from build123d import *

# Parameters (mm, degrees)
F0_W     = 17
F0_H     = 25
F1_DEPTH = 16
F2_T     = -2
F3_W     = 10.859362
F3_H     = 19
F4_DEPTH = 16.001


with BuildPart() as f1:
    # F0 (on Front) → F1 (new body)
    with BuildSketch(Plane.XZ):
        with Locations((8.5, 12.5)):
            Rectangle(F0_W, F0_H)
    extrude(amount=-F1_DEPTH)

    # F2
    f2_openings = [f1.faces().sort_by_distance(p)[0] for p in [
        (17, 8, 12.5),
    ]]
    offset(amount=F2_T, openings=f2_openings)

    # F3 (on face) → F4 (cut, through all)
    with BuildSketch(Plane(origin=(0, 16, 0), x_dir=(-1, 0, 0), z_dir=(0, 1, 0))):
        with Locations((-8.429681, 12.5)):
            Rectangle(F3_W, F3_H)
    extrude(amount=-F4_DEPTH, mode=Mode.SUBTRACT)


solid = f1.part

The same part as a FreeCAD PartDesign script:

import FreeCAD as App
import Part
import Sketcher

V = App.Vector
Q = App.Units.Quantity


def faces_at(feature, points):
    """Names of the faces that lie closest to the given points."""
    faces = feature.Shape.Faces
    near = lambda p: min(range(len(faces)), key=lambda i: faces[i].distToShape(Part.Vertex(*p))[0])
    return sorted({f"Face{near(p) + 1}" for p in points})


def add_polygon(sketch, points):
    """Adds a closed chain of lines whose ends are joined by coincident constraints."""
    first, n = sketch.GeometryCount, len(points)
    for a, b in zip(points, points[1:] + points[:1]):
        sketch.addGeometry(Part.LineSegment(App.Vector(*a, 0), App.Vector(*b, 0)), False)
    for i in range(n):
        sketch.addConstraint(Sketcher.Constraint("Coincident", first + i, 2, first + (i + 1) % n, 1))

doc = App.newDocument("Part")
params = doc.addObject("Spreadsheet::Sheet", "Params")
for row, (alias, value) in enumerate([
    ("sketch1_width", "17 mm"),
    ("sketch1_height", "25 mm"),
    ("pad1_length", "16 mm"),
    ("thickness_wall", "2 mm"),
    ("sketch2_height", "19 mm"),
], start=1):
    params.set(f"A{row}", alias)
    params.set(f"B{row}", "=" + value)
    params.setAlias(f"B{row}", alias)

body = doc.addObject("PartDesign::Body", "Body")

# Sketch on XZ plane
sketch1 = body.newObject("Sketcher::SketchObject", "Sketch")
sketch1.AttachmentSupport = (doc.getObject("XZ_Plane"), [""])
sketch1.MapMode = "FlatFace"
add_polygon(sketch1, [(0, 25), (0, 0), (17, 0), (17, 25)])  # lines 0-3
sketch1.addConstraint([
    Sketcher.Constraint("Vertical", 0),
    Sketcher.Constraint("Horizontal", 1),
    Sketcher.Constraint("Vertical", 2),
    Sketcher.Constraint("Horizontal", 3),
    Sketcher.Constraint("Coincident", 0, 2, -1, 1),
    Sketcher.Constraint("DistanceX", 1, 1, 1, 2, Q("17 mm")),
    Sketcher.Constraint("DistanceY", 0, 2, 0, 1, Q("25 mm")),
])
sketch1.setExpression("Constraints[9]", "Params.sketch1_width")
sketch1.setExpression("Constraints[10]", "Params.sketch1_height")
pad1 = body.newObject("PartDesign::Pad", "Pad")
pad1.Profile = sketch1
pad1.setExpression("Length", "Params.pad1_length")
pad1.Reversed = True
doc.recompute()

thickness = body.newObject("PartDesign::Thickness", "Thickness")
thickness.Base = (pad1, faces_at(pad1, [(17, 8, 12.5)]))
thickness.setExpression("Value", "Params.thickness_wall")
thickness.Reversed = True
thickness.Join = "Arc"

# Sketch on XZ plane
sketch2 = body.newObject("Sketcher::SketchObject", "Sketch001")
sketch2.AttachmentSupport = (doc.getObject("XZ_Plane"), [""])
sketch2.MapMode = "FlatFace"
sketch2.AttachmentOffset = App.Placement(V(0, 0, -16), App.Rotation())
add_polygon(sketch2, [(14, 22), (14, 3), (3, 3), (3, 22)])  # lines 0-3
sketch2.addConstraint([
    Sketcher.Constraint("Vertical", 0),
    Sketcher.Constraint("Horizontal", 1),
    Sketcher.Constraint("Vertical", 2),
    Sketcher.Constraint("Horizontal", 3),
    Sketcher.Constraint("DistanceY", 0, 2, 0, 1, Q("19 mm")),
    Sketcher.Constraint("DistanceY", -1, 1, 0, 2, Q("3 mm")),
    Sketcher.Constraint("DistanceX", -1, 1, 1, 2, Q("3 mm")),
    Sketcher.Constraint("DistanceX", 1, 2, 1, 1, Q("10.859362 mm")),
])
sketch2.setExpression("Constraints[8]", "Params.sketch2_height")
pocket1 = body.newObject("PartDesign::Pocket", "Pocket")
pocket1.Profile = sketch2
pocket1.Type = "ThroughAll"
pocket1.Reversed = True

doc.recompute()
